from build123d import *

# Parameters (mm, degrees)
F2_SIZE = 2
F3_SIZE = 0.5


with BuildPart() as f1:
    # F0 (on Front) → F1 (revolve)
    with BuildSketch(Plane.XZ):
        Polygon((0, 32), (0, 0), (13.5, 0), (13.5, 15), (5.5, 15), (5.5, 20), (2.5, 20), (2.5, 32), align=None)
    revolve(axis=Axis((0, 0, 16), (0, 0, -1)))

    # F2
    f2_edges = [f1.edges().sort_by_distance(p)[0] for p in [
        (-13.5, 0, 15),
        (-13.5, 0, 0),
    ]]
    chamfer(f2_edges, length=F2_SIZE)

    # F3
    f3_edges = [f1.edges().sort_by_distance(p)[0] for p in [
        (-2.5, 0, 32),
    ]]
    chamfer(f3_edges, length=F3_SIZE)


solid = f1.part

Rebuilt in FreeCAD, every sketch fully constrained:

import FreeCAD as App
import Part
import Sketcher

V = App.Vector
Q = App.Units.Quantity


def edges_at(feature, points):
    """Names of the edges that pass closest to the given points."""
    edges = feature.Shape.Edges
    near = lambda p: min(range(len(edges)), key=lambda i: edges[i].distToShape(Part.Vertex(*p))[0])
    return sorted({f"Edge{near(p) + 1}" for p in points})


def add_polygon(sketch, points):
    """Adds a closed chain of lines whose ends are joined by coincident constraints."""
    first, n = sketch.GeometryCount, len(points)
    for a, b in zip(points, points[1:] + points[:1]):
        sketch.addGeometry(Part.LineSegment(App.Vector(*a, 0), App.Vector(*b, 0)), False)
    for i in range(n):
        sketch.addConstraint(Sketcher.Constraint("Coincident", first + i, 2, first + (i + 1) % n, 1))

doc = App.newDocument("Part")
body = doc.addObject("PartDesign::Body", "Body")

# Sketch on XZ plane
sketch1 = doc.addObject("Sketcher::SketchObject", "Sketch")
body.addObject(sketch1)
sketch1.AttachmentSupport = (doc.XZ_Plane, [""])
sketch1.MapMode = "FlatFace"
add_polygon(sketch1, [(0, 32), (0, 0), (13.5, 0), (13.5, 15), (5.5, 15), (5.5, 20), (2.5, 20), (2.5, 32)])  # lines 0-7
sketch1.addConstraint(Sketcher.Constraint("Vertical", 0))
sketch1.addConstraint(Sketcher.Constraint("Horizontal", 1))
sketch1.addConstraint(Sketcher.Constraint("Vertical", 2))
sketch1.addConstraint(Sketcher.Constraint("Horizontal", 3))
sketch1.addConstraint(Sketcher.Constraint("Vertical", 4))
sketch1.addConstraint(Sketcher.Constraint("Horizontal", 5))
sketch1.addConstraint(Sketcher.Constraint("Vertical", 6))
sketch1.addConstraint(Sketcher.Constraint("Horizontal", 7))
sketch1.addConstraint(Sketcher.Constraint("Coincident", 0, 2, -1, 1))
sketch1.addConstraint(Sketcher.Constraint("DistanceX", 3, 2, 3, 1, Q("8 mm")))
sketch1.addConstraint(Sketcher.Constraint("DistanceX", 5, 2, 5, 1, Q("3 mm")))
sketch1.addConstraint(Sketcher.Constraint("DistanceY", 0, 2, 0, 1, Q("32 mm")))
sketch1.addConstraint(Sketcher.Constraint("DistanceY", 2, 1, 2, 2, Q("15 mm")))
sketch1.addConstraint(Sketcher.Constraint("DistanceY", 4, 1, 4, 2, Q("5 mm")))
sketch1.addConstraint(Sketcher.Constraint("DistanceX", 1, 1, 1, 2, Q("13.5 mm")))
revolution = doc.addObject("PartDesign::Revolution", "Revolution")
body.addObject(revolution)
revolution.Profile = sketch1
revolution.ReferenceAxis = (sketch1, ["V_Axis"])
revolution.Angle = 360
doc.recompute()

chamfer = doc.addObject("PartDesign::Chamfer", "Chamfer")
body.addObject(chamfer)
chamfer.Base = (revolution, edges_at(revolution, [(-13.5, 0, 15), (-13.5, 0, 0)]))
chamfer.Size = 2
doc.recompute()

chamfer2 = doc.addObject("PartDesign::Chamfer", "Chamfer001")
body.addObject(chamfer2)
chamfer2.Base = (chamfer, edges_at(chamfer, [(-2.5, 0, 32)]))
chamfer2.Size = 0.5

doc.recompute()
